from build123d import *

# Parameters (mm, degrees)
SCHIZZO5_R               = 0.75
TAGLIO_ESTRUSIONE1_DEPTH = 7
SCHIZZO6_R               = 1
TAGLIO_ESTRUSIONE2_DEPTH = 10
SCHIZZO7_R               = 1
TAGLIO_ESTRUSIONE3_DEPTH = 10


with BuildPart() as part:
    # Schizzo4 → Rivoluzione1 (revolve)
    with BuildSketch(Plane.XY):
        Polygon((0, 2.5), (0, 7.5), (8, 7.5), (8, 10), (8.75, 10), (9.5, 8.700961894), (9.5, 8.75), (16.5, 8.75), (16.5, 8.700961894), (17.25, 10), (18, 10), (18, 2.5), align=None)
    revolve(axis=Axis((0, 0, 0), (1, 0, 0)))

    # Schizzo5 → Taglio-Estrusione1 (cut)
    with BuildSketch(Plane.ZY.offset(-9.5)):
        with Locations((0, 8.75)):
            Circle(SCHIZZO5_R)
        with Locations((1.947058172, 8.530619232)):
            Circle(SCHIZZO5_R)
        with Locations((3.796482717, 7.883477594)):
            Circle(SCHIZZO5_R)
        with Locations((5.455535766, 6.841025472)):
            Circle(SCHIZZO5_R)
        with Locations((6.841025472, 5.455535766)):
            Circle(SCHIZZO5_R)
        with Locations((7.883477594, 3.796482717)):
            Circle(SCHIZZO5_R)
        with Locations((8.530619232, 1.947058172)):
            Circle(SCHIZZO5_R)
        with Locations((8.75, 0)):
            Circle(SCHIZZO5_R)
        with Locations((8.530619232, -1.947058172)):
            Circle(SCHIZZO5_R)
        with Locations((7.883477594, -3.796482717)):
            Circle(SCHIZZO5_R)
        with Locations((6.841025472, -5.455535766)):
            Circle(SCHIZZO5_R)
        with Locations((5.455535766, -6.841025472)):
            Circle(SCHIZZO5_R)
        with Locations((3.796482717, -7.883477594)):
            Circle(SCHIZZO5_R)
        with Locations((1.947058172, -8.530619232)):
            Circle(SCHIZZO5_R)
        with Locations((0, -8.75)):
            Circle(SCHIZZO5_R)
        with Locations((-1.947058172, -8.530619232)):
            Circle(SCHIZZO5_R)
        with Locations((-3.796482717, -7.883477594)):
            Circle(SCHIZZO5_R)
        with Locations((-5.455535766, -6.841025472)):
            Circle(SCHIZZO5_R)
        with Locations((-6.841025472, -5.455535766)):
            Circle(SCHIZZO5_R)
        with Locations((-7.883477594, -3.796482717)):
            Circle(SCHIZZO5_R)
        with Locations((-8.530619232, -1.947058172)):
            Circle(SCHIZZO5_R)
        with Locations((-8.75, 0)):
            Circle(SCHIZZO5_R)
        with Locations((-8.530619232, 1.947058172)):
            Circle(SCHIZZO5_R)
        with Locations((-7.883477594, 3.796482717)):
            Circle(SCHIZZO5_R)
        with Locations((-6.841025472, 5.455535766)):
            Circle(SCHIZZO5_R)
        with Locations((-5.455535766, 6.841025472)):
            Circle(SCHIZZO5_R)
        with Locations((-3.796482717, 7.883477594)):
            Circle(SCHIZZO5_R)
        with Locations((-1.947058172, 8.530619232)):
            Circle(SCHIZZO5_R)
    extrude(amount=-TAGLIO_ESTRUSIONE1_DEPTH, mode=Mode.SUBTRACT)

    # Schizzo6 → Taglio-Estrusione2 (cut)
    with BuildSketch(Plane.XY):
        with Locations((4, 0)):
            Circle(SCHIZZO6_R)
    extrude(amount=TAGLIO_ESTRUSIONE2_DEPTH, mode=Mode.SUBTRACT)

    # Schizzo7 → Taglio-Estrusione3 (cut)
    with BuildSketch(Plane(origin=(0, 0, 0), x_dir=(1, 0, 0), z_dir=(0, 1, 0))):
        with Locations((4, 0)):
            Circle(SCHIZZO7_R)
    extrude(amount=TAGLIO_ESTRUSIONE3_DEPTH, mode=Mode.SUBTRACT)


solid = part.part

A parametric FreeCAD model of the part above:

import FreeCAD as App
import Part
import Sketcher

V = App.Vector
Q = App.Units.Quantity


def add_polygon(sketch, points):
    """Adds a closed chain of lines whose ends are joined by coincident constraints."""
    first, n = sketch.GeometryCount, len(points)
    for a, b in zip(points, points[1:] + points[:1]):
        sketch.addGeometry(Part.LineSegment(App.Vector(*a, 0), App.Vector(*b, 0)), False)
    for i in range(n):
        sketch.addConstraint(Sketcher.Constraint("Coincident", first + i, 2, first + (i + 1) % n, 1))

doc = App.newDocument("Part")
body = doc.addObject("PartDesign::Body", "Body")

sketch1 = doc.addObject("Sketcher::SketchObject", "Sketch")
body.addObject(sketch1)
sketch1.AttachmentSupport = (doc.XY_Plane, [""])
sketch1.MapMode = "FlatFace"
add_polygon(sketch1, [(0, 7.5), (0, 2.5), (18, 2.5), (18, 10), (17.25, 10), (16.5, 8.700962), (16.5, 8.75), (9.5, 8.75), (9.5, 8.700962), (8.75, 10), (8, 10), (8, 7.5)])
sketch1.addConstraint([
    Sketcher.Constraint("Vertical", 0),
    Sketcher.Constraint("Horizontal", 1),
    Sketcher.Constraint("Vertical", 2),
    Sketcher.Constraint("Horizontal", 3),
    Sketcher.Constraint("Vertical", 5),
    Sketcher.Constraint("Horizontal", 6),
    Sketcher.Constraint("Vertical", 7),
    Sketcher.Constraint("Horizontal", 9),
    Sketcher.Constraint("Vertical", 10),
    Sketcher.Constraint("Horizontal", 11),
    Sketcher.Constraint("PointOnObject", 0, 2, -2),
    Sketcher.Constraint("Horizontal", 4, 2, 7, 2),
    Sketcher.Constraint("Horizontal", 3, 2, 8, 2),
    Sketcher.Constraint("Equal", 3, 9),
    Sketcher.Constraint("Equal", 4, 8),
    Sketcher.Constraint("DistanceX", 1, 1, 1, 2, 18.0),
    Sketcher.Constraint("DistanceX", 6, 2, 6, 1, 7.0),
    Sketcher.Constraint("DistanceX", 11, 2, 11, 1, 8.0),
    Sketcher.Constraint("DistanceY", 0, 2, 0, 1, 5.0),
    Sketcher.Constraint("Angle", 4, Q("-120 deg")),
    Sketcher.Constraint("DistanceY", 2, 1, 2, 2, 7.5),
    Sketcher.Constraint("DistanceY", -1, 1, 2, 2, 10.0),
    Sketcher.Constraint("Distance", 4, 1.5),
    Sketcher.Constraint("DistanceY", -1, 1, 5, 2, 8.75),
])
revolution = doc.addObject("PartDesign::Revolution", "Revolution")
body.addObject(revolution)
revolution.Profile = sketch1
revolution.ReferenceAxis = (sketch1, ["H_Axis"])
revolution.Angle = 360

sketch2 = doc.addObject("Sketcher::SketchObject", "Sketch001")
body.addObject(sketch2)
sketch2.AttachmentSupport = (doc.YZ_Plane, [""])
sketch2.MapMode = "FlatFace"
sketch2.AttachmentOffset = App.Placement(V(0, 0, 9.5), App.Rotation())
sketch2.addGeometry([
    Part.Circle(V(8.75, 0, 0), V(0, 0, 1), 0.75),
    Part.Circle(V(8.530619, 1.947058, 0), V(0, 0, 1), 0.75),
    Part.Circle(V(7.883478, 3.796483, 0), V(0, 0, 1), 0.75),
    Part.Circle(V(6.841025, 5.455536, 0), V(0, 0, 1), 0.75),
    Part.Circle(V(5.455536, 6.841025, 0), V(0, 0, 1), 0.75),
    Part.Circle(V(3.796483, 7.883478, 0), V(0, 0, 1), 0.75),
    Part.Circle(V(1.947058, 8.530619, 0), V(0, 0, 1), 0.75),
    Part.Circle(V(0, 8.75, 0), V(0, 0, 1), 0.75),
    Part.Circle(V(-1.947058, 8.530619, 0), V(0, 0, 1), 0.75),
    Part.Circle(V(-3.796483, 7.883478, 0), V(0, 0, 1), 0.75),
    Part.Circle(V(-5.455536, 6.841025, 0), V(0, 0, 1), 0.75),
    Part.Circle(V(-6.841025, 5.455536, 0), V(0, 0, 1), 0.75),
    Part.Circle(V(-7.883478, 3.796483, 0), V(0, 0, 1), 0.75),
    Part.Circle(V(-8.530619, 1.947058, 0), V(0, 0, 1), 0.75),
    Part.Circle(V(-8.75, 0, 0), V(0, 0, 1), 0.75),
    Part.Circle(V(-8.530619, -1.947058, 0), V(0, 0, 1), 0.75),
    Part.Circle(V(-7.883478, -3.796483, 0), V(0, 0, 1), 0.75),
    Part.Circle(V(-6.841025, -5.455536, 0), V(0, 0, 1), 0.75),
    Part.Circle(V(-5.455536, -6.841025, 0), V(0, 0, 1), 0.75),
    Part.Circle(V(-3.796483, -7.883478, 0), V(0, 0, 1), 0.75),
    Part.Circle(V(-1.947058, -8.530619, 0), V(0, 0, 1), 0.75),
    Part.Circle(V(0, -8.75, 0), V(0, 0, 1), 0.75),
    Part.Circle(V(1.947058, -8.530619, 0), V(0, 0, 1), 0.75),
    Part.Circle(V(3.796483, -7.883478, 0), V(0, 0, 1), 0.75),
    Part.Circle(V(5.455536, -6.841025, 0), V(0, 0, 1), 0.75),
    Part.Circle(V(6.841025, -5.455536, 0), V(0, 0, 1), 0.75),
    Part.Circle(V(7.883478, -3.796483, 0), V(0, 0, 1), 0.75),
    Part.Circle(V(8.530619, -1.947058, 0), V(0, 0, 1), 0.75),
], False)
sketch2.addConstraint([
    Sketcher.Constraint("Equal", 0, 1),
    Sketcher.Constraint("Equal", 1, 2),
    Sketcher.Constraint("Equal", 2, 3),
    Sketcher.Constraint("Equal", 3, 4),
    Sketcher.Constraint("Equal", 4, 5),
    Sketcher.Constraint("Equal", 5, 6),
    Sketcher.Constraint("Equal", 6, 7),
    Sketcher.Constraint("Equal", 7, 8),
    Sketcher.Constraint("Equal", 8, 9),
    Sketcher.Constraint("Equal", 9, 10),
    Sketcher.Constraint("Equal", 10, 11),
    Sketcher.Constraint("Equal", 11, 12),
    Sketcher.Constraint("Equal", 12, 13),
    Sketcher.Constraint("Equal", 13, 14),
    Sketcher.Constraint("Equal", 14, 15),
    Sketcher.Constraint("Equal", 15, 16),
    Sketcher.Constraint("Equal", 16, 17),
    Sketcher.Constraint("Equal", 17, 18),
    Sketcher.Constraint("Equal", 18, 19),
    Sketcher.Constraint("Equal", 19, 20),
    Sketcher.Constraint("Equal", 20, 21),
    Sketcher.Constraint("Equal", 21, 22),
    Sketcher.Constraint("Equal", 22, 23),
    Sketcher.Constraint("Equal", 23, 24),
    Sketcher.Constraint("Equal", 24, 25),
    Sketcher.Constraint("Equal", 25, 26),
    Sketcher.Constraint("Equal", 26, 27),
    Sketcher.Constraint("Symmetric", 0, 3, 14, 3, -1, 1),
    Sketcher.Constraint("Symmetric", 1, 3, 15, 3, -1, 1),
    Sketcher.Constraint("Symmetric", 2, 3, 16, 3, -1, 1),
    Sketcher.Constraint("Symmetric", 3, 3, 17, 3, -1, 1),
    Sketcher.Constraint("Symmetric", 4, 3, 18, 3, -1, 1),
    Sketcher.Constraint("Symmetric", 5, 3, 19, 3, -1, 1),
    Sketcher.Constraint("Symmetric", 6, 3, 20, 3, -1, 1),
    Sketcher.Constraint("Symmetric", 7, 3, 21, 3, -1, 1),
    Sketcher.Constraint("Symmetric", 8, 3, 22, 3, -1, 1),
    Sketcher.Constraint("Symmetric", 9, 3, 23, 3, -1, 1),
    Sketcher.Constraint("Symmetric", 10, 3, 24, 3, -1, 1),
    Sketcher.Constraint("Symmetric", 11, 3, 25, 3, -1, 1),
    Sketcher.Constraint("Symmetric", 12, 3, 26, 3, -1, 1),
    Sketcher.Constraint("Symmetric", 13, 3, 27, 3, -1, 1),
    Sketcher.Constraint("Symmetric", 6, 3, 8, 3, -2),
    Sketcher.Constraint("Symmetric", 5, 3, 9, 3, -2),
    Sketcher.Constraint("Symmetric", 4, 3, 10, 3, -2),
    Sketcher.Constraint("Symmetric", 3, 3, 11, 3, -2),
    Sketcher.Constraint("Symmetric", 2, 3, 12, 3, -2),
    Sketcher.Constraint("Symmetric", 1, 3, 13, 3, -2),
    Sketcher.Constraint("PointOnObject", 0, 3, -1),
    Sketcher.Constraint("PointOnObject", 7, 3, -2),
    Sketcher.Constraint("Diameter", 0, 1.5),
    Sketcher.Constraint("DistanceX", -1, 1, 0, 3, 8.75),
    Sketcher.Constraint("DistanceY", -1, 1, 7, 3, 8.75),
    Sketcher.Constraint("DistanceX", -1, 1, 1, 3, 8.530619),
    Sketcher.Constraint("DistanceY", -1, 1, 1, 3, 1.947058),
    Sketcher.Constraint("DistanceX", -1, 1, 6, 3, 1.947058),
    Sketcher.Constraint("DistanceY", -1, 1, 6, 3, 8.530619),
    Sketcher.Constraint("DistanceX", 2, 3, 1, 3, 0.647142),
    Sketcher.Constraint("DistanceX", 4, 3, 3, 3, 1.38549),
    Sketcher.Constraint("DistanceY", 3, 3, 4, 3, 1.38549),
    Sketcher.Constraint("DistanceX", 4, 3, 2, 3, 2.427942),
    Sketcher.Constraint("DistanceY", 3, 3, 5, 3, 2.427942),
    Sketcher.Constraint("DistanceY", 1, 3, 5, 3, 5.936419),
    Sketcher.Constraint("DistanceX", 8, 3, 5, 3, 5.743541),
    Sketcher.Constraint("DistanceY", 15, 3, 12, 3, 5.743541),
])
pocket1 = doc.addObject("PartDesign::Pocket", "Pocket")
body.addObject(pocket1)
pocket1.Profile = sketch2
pocket1.Length = 7
pocket1.Reversed = True

sketch3 = doc.addObject("Sketcher::SketchObject", "Sketch002")
body.addObject(sketch3)
sketch3.AttachmentSupport = (doc.XY_Plane, [""])
sketch3.MapMode = "FlatFace"
sketch3.addGeometry(Part.Circle(V(4, 0, 0), V(0, 0, 1), 1), False)
sketch3.addConstraint([
    Sketcher.Constraint("PointOnObject", 0, 3, -1),
    Sketcher.Constraint("Diameter", 0, 2.0),
    Sketcher.Constraint("DistanceX", -1, 1, 0, 3, 4.0),
])
pocket2 = doc.addObject("PartDesign::Pocket", "Pocket001")
body.addObject(pocket2)
pocket2.Profile = sketch3
pocket2.Length = 10
pocket2.Reversed = True

sketch4 = doc.addObject("Sketcher::SketchObject", "Sketch003")
body.addObject(sketch4)
sketch4.AttachmentSupport = (doc.XZ_Plane, [""])
sketch4.MapMode = "FlatFace"
sketch4.addGeometry(Part.Circle(V(4, 0, 0), V(0, 0, 1), 1), False)
sketch4.addConstraint([
    Sketcher.Constraint("PointOnObject", 0, 3, -1),
    Sketcher.Constraint("Diameter", 0, 2.0),
    Sketcher.Constraint("DistanceX", -1, 1, 0, 3, 4.0),
])
pocket3 = doc.addObject("PartDesign::Pocket", "Pocket002")
body.addObject(pocket3)
pocket3.Profile = sketch4
pocket3.Length = 10

doc.recompute()
